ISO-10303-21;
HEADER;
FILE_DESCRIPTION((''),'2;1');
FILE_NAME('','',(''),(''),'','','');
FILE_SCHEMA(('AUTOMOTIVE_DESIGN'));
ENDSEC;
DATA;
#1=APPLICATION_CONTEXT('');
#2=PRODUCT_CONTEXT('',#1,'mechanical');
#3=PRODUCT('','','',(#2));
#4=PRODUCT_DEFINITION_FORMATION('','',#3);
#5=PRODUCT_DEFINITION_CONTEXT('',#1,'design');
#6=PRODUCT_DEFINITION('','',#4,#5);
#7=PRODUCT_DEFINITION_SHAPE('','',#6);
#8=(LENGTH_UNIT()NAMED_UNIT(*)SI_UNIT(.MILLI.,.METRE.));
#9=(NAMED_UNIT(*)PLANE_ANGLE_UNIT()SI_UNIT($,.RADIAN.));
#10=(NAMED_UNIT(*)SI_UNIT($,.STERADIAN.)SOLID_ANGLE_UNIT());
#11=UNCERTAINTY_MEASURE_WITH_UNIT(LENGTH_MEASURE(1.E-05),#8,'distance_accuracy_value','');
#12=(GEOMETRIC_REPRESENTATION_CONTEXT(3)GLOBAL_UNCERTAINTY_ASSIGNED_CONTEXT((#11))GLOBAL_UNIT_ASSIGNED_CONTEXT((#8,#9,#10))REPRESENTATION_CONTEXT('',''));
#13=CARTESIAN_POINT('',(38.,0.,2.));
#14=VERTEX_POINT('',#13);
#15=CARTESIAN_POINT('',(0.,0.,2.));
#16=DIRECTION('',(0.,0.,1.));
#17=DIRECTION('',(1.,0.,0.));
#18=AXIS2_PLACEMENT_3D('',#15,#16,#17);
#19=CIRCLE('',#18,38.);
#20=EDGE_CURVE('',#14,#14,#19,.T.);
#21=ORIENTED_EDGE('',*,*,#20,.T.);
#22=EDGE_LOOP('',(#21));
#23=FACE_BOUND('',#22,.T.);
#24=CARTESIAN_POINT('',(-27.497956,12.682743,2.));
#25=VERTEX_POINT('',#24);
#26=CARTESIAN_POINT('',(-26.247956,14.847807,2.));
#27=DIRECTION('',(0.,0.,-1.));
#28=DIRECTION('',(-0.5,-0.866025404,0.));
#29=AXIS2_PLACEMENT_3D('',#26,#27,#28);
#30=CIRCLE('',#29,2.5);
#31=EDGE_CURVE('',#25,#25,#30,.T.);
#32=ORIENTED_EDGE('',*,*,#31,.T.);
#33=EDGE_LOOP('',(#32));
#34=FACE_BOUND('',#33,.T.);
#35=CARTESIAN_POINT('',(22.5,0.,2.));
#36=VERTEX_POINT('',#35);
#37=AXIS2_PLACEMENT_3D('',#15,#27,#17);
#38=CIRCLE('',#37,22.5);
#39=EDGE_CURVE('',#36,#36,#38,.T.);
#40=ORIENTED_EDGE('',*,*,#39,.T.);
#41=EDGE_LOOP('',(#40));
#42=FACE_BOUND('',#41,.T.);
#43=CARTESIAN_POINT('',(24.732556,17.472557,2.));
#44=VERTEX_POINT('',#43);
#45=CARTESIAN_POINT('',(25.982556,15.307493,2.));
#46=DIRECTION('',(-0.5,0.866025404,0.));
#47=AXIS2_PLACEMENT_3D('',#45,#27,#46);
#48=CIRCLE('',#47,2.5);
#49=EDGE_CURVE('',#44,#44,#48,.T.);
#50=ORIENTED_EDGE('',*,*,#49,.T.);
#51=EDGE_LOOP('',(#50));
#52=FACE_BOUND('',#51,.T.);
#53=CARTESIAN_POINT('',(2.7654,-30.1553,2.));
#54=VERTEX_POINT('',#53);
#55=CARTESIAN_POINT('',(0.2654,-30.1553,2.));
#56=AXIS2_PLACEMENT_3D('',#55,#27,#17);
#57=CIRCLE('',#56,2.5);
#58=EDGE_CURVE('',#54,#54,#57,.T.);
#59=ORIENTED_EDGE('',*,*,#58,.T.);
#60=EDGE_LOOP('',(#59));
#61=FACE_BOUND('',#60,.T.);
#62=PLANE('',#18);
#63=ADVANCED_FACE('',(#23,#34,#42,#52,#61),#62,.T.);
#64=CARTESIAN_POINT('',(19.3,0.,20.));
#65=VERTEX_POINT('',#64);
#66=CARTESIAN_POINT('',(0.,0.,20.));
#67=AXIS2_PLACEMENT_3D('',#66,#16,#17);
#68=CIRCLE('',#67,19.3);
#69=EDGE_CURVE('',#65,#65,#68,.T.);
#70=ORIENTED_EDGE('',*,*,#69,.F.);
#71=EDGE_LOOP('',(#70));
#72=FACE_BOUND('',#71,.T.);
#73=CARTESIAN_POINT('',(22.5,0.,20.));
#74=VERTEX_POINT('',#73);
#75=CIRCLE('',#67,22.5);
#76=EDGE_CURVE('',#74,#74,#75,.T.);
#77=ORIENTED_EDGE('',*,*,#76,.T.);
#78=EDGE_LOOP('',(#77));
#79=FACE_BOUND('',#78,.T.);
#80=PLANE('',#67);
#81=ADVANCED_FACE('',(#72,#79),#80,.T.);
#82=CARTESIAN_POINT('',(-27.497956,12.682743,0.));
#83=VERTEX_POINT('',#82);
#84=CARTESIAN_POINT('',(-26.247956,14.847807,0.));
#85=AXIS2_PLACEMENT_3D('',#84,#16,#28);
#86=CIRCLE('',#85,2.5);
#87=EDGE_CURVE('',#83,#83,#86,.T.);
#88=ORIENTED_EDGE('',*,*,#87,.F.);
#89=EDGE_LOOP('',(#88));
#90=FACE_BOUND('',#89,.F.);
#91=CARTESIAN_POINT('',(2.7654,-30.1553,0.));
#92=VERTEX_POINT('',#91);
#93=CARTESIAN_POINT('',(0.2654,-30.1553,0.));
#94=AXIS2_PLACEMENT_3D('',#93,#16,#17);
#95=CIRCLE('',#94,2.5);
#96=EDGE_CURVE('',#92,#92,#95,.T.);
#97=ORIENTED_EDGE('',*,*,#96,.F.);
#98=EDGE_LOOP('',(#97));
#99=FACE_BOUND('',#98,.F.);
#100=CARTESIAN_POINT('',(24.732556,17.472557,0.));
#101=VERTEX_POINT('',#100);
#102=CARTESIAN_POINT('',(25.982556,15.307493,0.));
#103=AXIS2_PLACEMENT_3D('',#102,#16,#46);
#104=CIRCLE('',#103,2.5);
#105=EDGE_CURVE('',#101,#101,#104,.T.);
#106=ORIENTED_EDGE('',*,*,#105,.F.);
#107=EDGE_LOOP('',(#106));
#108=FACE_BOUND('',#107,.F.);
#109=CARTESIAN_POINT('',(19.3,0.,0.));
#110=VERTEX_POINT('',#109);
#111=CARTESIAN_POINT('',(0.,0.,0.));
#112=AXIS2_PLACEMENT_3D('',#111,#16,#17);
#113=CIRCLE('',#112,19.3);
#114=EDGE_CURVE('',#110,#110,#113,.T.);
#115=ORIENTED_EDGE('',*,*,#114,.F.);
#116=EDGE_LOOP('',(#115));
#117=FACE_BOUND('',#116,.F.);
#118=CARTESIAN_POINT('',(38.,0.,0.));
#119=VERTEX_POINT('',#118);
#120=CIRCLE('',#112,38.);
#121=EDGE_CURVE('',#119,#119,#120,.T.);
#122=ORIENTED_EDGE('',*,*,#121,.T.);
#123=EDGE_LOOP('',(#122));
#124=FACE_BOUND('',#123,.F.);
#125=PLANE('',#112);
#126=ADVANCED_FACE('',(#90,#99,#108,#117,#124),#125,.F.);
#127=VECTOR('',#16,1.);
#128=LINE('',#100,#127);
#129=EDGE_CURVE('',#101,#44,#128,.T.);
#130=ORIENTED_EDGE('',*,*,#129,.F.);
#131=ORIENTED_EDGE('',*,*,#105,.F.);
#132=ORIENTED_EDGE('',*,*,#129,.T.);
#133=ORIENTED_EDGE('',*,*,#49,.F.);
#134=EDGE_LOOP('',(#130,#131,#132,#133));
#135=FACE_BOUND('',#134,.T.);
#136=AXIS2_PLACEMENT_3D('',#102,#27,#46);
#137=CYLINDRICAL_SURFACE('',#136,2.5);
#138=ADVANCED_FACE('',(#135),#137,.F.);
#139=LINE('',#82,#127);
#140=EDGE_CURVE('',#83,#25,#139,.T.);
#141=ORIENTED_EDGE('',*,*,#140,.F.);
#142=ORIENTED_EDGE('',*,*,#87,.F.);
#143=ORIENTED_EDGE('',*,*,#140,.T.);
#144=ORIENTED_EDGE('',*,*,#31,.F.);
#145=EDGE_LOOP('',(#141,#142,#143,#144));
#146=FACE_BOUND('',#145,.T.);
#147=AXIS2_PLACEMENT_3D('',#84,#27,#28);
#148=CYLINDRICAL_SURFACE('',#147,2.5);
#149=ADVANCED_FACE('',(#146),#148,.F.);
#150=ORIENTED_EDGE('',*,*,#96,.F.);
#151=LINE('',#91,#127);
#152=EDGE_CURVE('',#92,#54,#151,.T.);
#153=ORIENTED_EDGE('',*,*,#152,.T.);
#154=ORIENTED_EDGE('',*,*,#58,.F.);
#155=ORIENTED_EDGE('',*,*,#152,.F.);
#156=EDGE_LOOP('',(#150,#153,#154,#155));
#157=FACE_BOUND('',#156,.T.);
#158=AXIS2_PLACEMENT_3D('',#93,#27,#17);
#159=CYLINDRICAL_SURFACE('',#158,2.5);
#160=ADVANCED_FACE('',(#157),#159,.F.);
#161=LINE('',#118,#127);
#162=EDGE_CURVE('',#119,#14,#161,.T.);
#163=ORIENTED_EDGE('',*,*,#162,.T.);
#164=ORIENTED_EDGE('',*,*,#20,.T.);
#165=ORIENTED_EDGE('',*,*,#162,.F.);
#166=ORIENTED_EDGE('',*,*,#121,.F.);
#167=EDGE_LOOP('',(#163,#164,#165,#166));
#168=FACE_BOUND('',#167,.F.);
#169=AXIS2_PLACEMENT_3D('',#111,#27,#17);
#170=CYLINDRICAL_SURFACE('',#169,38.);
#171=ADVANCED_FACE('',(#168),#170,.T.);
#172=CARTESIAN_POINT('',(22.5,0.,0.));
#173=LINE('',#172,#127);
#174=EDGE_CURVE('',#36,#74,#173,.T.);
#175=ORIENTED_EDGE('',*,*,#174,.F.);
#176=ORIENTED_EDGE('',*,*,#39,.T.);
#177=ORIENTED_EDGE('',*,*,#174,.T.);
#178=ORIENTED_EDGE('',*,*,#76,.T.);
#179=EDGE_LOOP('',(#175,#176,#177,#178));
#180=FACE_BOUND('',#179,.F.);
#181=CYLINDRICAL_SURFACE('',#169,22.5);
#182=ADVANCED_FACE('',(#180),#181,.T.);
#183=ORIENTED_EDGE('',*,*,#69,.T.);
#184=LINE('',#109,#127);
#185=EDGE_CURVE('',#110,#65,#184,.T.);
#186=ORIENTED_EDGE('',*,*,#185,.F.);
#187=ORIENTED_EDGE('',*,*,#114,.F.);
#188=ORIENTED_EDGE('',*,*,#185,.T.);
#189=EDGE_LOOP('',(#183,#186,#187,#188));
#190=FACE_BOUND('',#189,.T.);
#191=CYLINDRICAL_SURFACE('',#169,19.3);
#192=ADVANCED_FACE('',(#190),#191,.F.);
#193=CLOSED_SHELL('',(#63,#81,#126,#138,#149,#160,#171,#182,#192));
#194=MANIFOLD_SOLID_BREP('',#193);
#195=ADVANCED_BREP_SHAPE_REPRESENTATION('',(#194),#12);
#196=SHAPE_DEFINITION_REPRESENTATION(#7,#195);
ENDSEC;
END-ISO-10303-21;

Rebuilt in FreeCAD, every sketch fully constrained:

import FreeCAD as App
import Part
import Sketcher
Q = App.Units.Quantity

doc = App.newDocument("Part")
body = doc.addObject("PartDesign::Body", "Body")

# Sketch on XY plane
sketch1 = body.newObject("Sketcher::SketchObject", "Sketch")
sketch1.AttachmentSupport = (doc.getObject("XY_Plane"), [""])
sketch1.MapMode = "FlatFace"
sketch1.addGeometry([
    Part.Circle(App.Vector(0, 0, 0), App.Vector(0, 0, 1), 22.5),
    Part.Circle(App.Vector(0, 0, 0), App.Vector(0, 0, 1), 19.3),
], False)
sketch1.addConstraint([
    Sketcher.Constraint("Coincident", 0, 3, -1, 1),
    Sketcher.Constraint("Coincident", 1, 3, -1, 1),
    Sketcher.Constraint("Diameter", 0, Q("45 mm")),
    Sketcher.Constraint("Diameter", 1, Q("38.6 mm")),
])
pad1 = body.newObject("PartDesign::Pad", "Pad")
pad1.Profile = sketch1
pad1.Length = 20

# Sketch on XY plane
sketch2 = body.newObject("Sketcher::SketchObject", "Sketch001")
sketch2.AttachmentSupport = (doc.getObject("XY_Plane"), [""])
sketch2.MapMode = "FlatFace"
sketch2.addGeometry([
    Part.Circle(App.Vector(0, 0, 0), App.Vector(0, 0, 1), 38),
    Part.Circle(App.Vector(0, 0, 0), App.Vector(0, 0, 1), 19.3),
], False)
sketch2.addConstraint([
    Sketcher.Constraint("Coincident", 0, 3, -1, 1),
    Sketcher.Constraint("Coincident", 1, 3, -1, 1),
    Sketcher.Constraint("Diameter", 0, Q("76 mm")),
    Sketcher.Constraint("Diameter", 1, Q("38.6 mm")),
])
pad2 = body.newObject("PartDesign::Pad", "Pad001")
pad2.Profile = sketch2
pad2.Length = 2

# Sketch on XY plane
sketch3 = body.newObject("Sketcher::SketchObject", "Sketch002")
sketch3.AttachmentSupport = (doc.getObject("XY_Plane"), [""])
sketch3.MapMode = "FlatFace"
sketch3.addGeometry(Part.Circle(App.Vector(0.2654, -30.1553, 0), App.Vector(0, 0, 1), 2.5), False)
sketch3.addConstraint([
    Sketcher.Constraint("Diameter", 0, Q("5 mm")),
    Sketcher.Constraint("DistanceX", -1, 1, 0, 3, Q("0.2654 mm")),
    Sketcher.Constraint("DistanceY", 0, 3, -1, 1, Q("30.1553 mm")),
])
pocket1 = body.newObject("PartDesign::Pocket", "Pocket")
pocket1.Profile = sketch3
pocket1.Length = 6.312
pocket1.Reversed = True
doc.recompute()

polarpattern = body.newObject("PartDesign::PolarPattern", "PolarPattern")
polarpattern.Originals = [pocket1]
polarpattern.Axis = (doc.getObject("Z_Axis"), [""])
polarpattern.Angle = 360
polarpattern.Occurrences = 3
body.Tip = polarpattern

doc.recompute()
